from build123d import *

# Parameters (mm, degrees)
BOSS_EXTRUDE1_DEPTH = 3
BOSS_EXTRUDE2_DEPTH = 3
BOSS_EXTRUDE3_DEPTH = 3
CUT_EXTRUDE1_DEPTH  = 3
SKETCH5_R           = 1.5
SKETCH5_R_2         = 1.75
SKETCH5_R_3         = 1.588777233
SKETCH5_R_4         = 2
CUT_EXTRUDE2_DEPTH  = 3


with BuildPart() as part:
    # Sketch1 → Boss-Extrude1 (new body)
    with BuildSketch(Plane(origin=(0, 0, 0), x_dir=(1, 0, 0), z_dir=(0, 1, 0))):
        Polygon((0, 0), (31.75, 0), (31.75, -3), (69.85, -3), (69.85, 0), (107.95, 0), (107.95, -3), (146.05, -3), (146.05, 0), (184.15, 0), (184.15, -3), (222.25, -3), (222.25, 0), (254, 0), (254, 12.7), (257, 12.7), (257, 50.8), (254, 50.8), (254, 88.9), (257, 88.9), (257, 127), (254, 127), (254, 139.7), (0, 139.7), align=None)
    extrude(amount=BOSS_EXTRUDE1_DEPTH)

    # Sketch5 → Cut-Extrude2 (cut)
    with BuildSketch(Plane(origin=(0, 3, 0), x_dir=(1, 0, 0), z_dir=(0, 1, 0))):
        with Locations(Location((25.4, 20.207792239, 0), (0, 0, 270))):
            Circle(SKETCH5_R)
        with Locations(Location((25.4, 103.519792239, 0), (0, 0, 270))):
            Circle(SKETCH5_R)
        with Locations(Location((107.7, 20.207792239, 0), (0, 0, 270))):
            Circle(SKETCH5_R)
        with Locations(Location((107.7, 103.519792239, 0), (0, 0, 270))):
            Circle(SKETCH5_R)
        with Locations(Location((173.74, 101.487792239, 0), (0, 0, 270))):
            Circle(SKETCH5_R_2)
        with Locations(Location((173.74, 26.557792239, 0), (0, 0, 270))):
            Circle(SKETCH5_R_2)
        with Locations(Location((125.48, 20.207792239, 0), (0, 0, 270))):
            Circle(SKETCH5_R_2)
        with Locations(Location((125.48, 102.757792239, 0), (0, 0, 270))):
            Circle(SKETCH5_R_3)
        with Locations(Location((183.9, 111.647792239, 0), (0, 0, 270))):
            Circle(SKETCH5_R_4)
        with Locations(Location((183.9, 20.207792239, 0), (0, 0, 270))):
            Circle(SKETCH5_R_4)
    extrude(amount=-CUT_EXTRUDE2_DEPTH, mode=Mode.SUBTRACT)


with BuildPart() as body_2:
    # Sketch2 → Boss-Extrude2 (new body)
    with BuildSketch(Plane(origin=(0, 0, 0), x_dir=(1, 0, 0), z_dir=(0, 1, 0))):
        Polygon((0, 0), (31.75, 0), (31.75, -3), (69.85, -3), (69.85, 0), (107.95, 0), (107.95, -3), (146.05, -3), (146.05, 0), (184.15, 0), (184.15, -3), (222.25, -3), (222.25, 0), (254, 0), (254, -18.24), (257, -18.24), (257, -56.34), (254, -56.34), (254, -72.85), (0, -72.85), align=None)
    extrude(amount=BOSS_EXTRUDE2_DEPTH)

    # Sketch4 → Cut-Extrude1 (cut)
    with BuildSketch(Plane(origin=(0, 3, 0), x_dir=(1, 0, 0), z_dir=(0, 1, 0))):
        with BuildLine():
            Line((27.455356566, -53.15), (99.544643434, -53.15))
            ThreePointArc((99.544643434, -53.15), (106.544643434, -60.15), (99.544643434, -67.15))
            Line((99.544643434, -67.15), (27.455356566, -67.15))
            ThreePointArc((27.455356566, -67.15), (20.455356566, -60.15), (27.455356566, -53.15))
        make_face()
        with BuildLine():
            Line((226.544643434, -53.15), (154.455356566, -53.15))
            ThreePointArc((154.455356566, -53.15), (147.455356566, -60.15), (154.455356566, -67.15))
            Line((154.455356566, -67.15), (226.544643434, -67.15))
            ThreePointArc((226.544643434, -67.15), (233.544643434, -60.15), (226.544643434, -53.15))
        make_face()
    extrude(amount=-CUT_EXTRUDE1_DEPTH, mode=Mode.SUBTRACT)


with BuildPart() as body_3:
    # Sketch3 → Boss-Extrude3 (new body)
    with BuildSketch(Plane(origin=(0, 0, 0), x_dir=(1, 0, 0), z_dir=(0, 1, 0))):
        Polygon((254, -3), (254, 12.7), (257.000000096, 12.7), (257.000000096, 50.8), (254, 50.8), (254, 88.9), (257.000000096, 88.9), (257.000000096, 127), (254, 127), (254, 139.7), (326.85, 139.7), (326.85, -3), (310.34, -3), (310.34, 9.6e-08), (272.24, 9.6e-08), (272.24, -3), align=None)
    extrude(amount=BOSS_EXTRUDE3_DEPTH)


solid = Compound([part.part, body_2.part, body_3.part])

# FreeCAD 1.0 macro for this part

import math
import FreeCAD as App
import Part
import Sketcher
from FreeCAD import Vector
Q = App.Units.Quantity


def add_polygon(sketch, points):
    """Adds a closed chain of lines whose ends are joined by coincident constraints."""
    first, n = sketch.GeometryCount, len(points)
    for a, b in zip(points, points[1:] + points[:1]):
        sketch.addGeometry(Part.LineSegment(App.Vector(*a, 0), App.Vector(*b, 0)), False)
    for i in range(n):
        sketch.addConstraint(Sketcher.Constraint("Coincident", first + i, 2, first + (i + 1) % n, 1))

doc = App.newDocument("Part")
body = doc.addObject("PartDesign::Body", "Body")

# Sketch on XZ plane
sketch1 = body.newObject("Sketcher::SketchObject", "Sketch")
sketch1.AttachmentSupport = (doc.getObject("XZ_Plane"), [""])
sketch1.MapMode = "FlatFace"
add_polygon(sketch1, [(0, 0), (31.8, 0), (31.8, 3), (69.8, 3), (69.8, 0), (108, 0), (108, 3), (146.1, 3), (146.1, 0), (184.2, 0), (184.2, 3), (222.2, 3), (222.2, 0), (254, 0), (254, -12.7), (257, -12.7), (257, -50.8), (254, -50.8), (254, -88.9), (257, -88.9), (257, -127), (254, -127), (254, -139.7), (0, -139.7)])  # lines 0-23
sketch1.addConstraint([
    Sketcher.Constraint("Horizontal", 0),
    Sketcher.Constraint("Vertical", 1),
    Sketcher.Constraint("Horizontal", 2),
    Sketcher.Constraint("Vertical", 3),
    Sketcher.Constraint("Horizontal", 4),
    Sketcher.Constraint("Vertical", 5),
    Sketcher.Constraint("Horizontal", 6),
    Sketcher.Constraint("Vertical", 7),
    Sketcher.Constraint("Horizontal", 8),
    Sketcher.Constraint("Vertical", 9),
    Sketcher.Constraint("Horizontal", 10),
    Sketcher.Constraint("Vertical", 11),
    Sketcher.Constraint("Horizontal", 12),
    Sketcher.Constraint("Vertical", 13),
    Sketcher.Constraint("Horizontal", 14),
    Sketcher.Constraint("Vertical", 15),
    Sketcher.Constraint("Horizontal", 16),
    Sketcher.Constraint("Vertical", 17),
    Sketcher.Constraint("Horizontal", 18),
    Sketcher.Constraint("Vertical", 19),
    Sketcher.Constraint("Horizontal", 20),
    Sketcher.Constraint("Vertical", 21),
    Sketcher.Constraint("Horizontal", 22),
    Sketcher.Constraint("Vertical", 23),
    Sketcher.Constraint("Coincident", 23, 2, -1, 1),
    Sketcher.Constraint("PointOnObject", 3, 2, -1),
    Sketcher.Constraint("PointOnObject", 7, 2, -1),
    Sketcher.Constraint("PointOnObject", 11, 2, -1),
    Sketcher.Constraint("Horizontal", 2, 2, 5, 2),
    Sketcher.Constraint("Horizontal", 6, 2, 9, 2),
    Sketcher.Constraint("Vertical", 13, 2, 16, 2),
    Sketcher.Constraint("Vertical", 15, 2, 18, 2),
    Sketcher.Constraint("Vertical", 17, 2, 20, 2),
    Sketcher.Constraint("Equal", 2, 4),
    Sketcher.Constraint("Equal", 4, 6),
    Sketcher.Constraint("Equal", 6, 8),
    Sketcher.Constraint("Equal", 8, 10),
    Sketcher.Constraint("Equal", 0, 12),
    Sketcher.Constraint("Equal", 20, 1),
    Sketcher.Constraint("Equal", 10, 15),
    Sketcher.Constraint("Equal", 15, 17),
    Sketcher.Constraint("Equal", 17, 19),
    Sketcher.Constraint("Equal", 13, 21),
    Sketcher.Constraint("DistanceX", 14, 1, 14, 2, Q("3 mm")),
    Sketcher.Constraint("DistanceX", 22, 2, 22, 1, Q("254 mm")),
    Sketcher.Constraint("DistanceX", 2, 1, 2, 2, Q("38.1 mm")),
    Sketcher.Constraint("DistanceY", 13, 2, 13, 1, Q("12.7 mm")),
])
pad1 = body.newObject("PartDesign::Pad", "Pad")
pad1.Profile = sketch1
pad1.Length = 3
pad1.Reversed = True

# Sketch on XZ plane
sketch2 = body.newObject("Sketcher::SketchObject", "Sketch001")
sketch2.AttachmentSupport = (doc.getObject("XZ_Plane"), [""])
sketch2.MapMode = "FlatFace"
sketch2.AttachmentOffset = App.Placement(Vector(0, 0, -3), App.Rotation())
sketch2.addGeometry([
    Part.Circle(Vector(25.4, -20.2, 0), Vector(0, 0, 1), 1.5),  # 0
    Part.Circle(Vector(25.4, -103.5, 0), Vector(0, 0, 1), 1.5),  # 1
    Part.Circle(Vector(107.7, -20.2, 0), Vector(0, 0, 1), 1.5),  # 2
    Part.Circle(Vector(107.7, -103.5, 0), Vector(0, 0, 1), 1.5),  # 3
    Part.Circle(Vector(173.7, -101.5, 0), Vector(0, 0, 1), 1.8),  # 4
    Part.Circle(Vector(173.7, -26.6, 0), Vector(0, 0, 1), 1.8),  # 5
    Part.Circle(Vector(125.5, -20.2, 0), Vector(0, 0, 1), 1.8),  # 6
    Part.Circle(Vector(125.5, -102.8, 0), Vector(0, 0, 1), 1.6),  # 7
    Part.Circle(Vector(183.9, -111.6, 0), Vector(0, 0, 1), 2),  # 8
    Part.Circle(Vector(183.9, -20.2, 0), Vector(0, 0, 1), 2),  # 9
], False)
sketch2.addConstraint([
    Sketcher.Constraint("Equal", 0, 1),
    Sketcher.Constraint("Equal", 1, 2),
    Sketcher.Constraint("Equal", 2, 3),
    Sketcher.Constraint("Equal", 4, 5),
    Sketcher.Constraint("Equal", 5, 6),
    Sketcher.Constraint("Equal", 8, 9),
    Sketcher.Constraint("Horizontal", 0, 3, 2, 3),
    Sketcher.Constraint("Horizontal", 1, 3, 3, 3),
    Sketcher.Constraint("Horizontal", 2, 3, 6, 3),
    Sketcher.Constraint("Horizontal", 6, 3, 9, 3),
    Sketcher.Constraint("Vertical", 0, 3, 1, 3),
    Sketcher.Constraint("Vertical", 2, 3, 3, 3),
    Sketcher.Constraint("Vertical", 4, 3, 5, 3),
    Sketcher.Constraint("Vertical", 6, 3, 7, 3),
    Sketcher.Constraint("Vertical", 8, 3, 9, 3),
    Sketcher.Constraint("Diameter", 0, Q("3 mm")),
    Sketcher.Constraint("Diameter", 8, Q("4 mm")),
    Sketcher.Constraint("Diameter", 4, Q("3.5 mm")),
    Sketcher.Constraint("DistanceX", -1, 1, 0, 3, Q("25.4 mm")),
    Sketcher.Constraint("DistanceX", -1, 1, 2, 3, Q("107.7 mm")),
    Sketcher.Constraint("DistanceX", -1, 1, 8, 3, Q("183.9 mm")),
    Sketcher.Constraint("DistanceY", 7, 3, 5, 3, Q("76.2 mm")),
    Sketcher.Constraint("DistanceX", -1, 1, 4, 3, Q("173.74 mm")),
    Sketcher.Constraint("DistanceX", -1, 1, 6, 3, Q("125.48 mm")),
    Sketcher.Constraint("DistanceY", 4, 3, 2, 3, Q("81.28 mm")),
    Sketcher.Constraint("DistanceY", 5, 3, 2, 3, Q("6.35 mm")),
    Sketcher.Constraint("DistanceY", 8, 3, 4, 3, Q("10.16 mm")),
    Sketcher.Constraint("Diameter", 7, Q("3.177554 mm")),
    Sketcher.Constraint("DistanceY", 1, 3, 0, 3, Q("83.312 mm")),
    Sketcher.Constraint("DistanceY", 0, 3, -1, 1, Q("20.207792 mm")),
])
pocket1 = body.newObject("PartDesign::Pocket", "Pocket")
pocket1.Profile = sketch2
pocket1.Length = 3
pocket1.Reversed = True
body2 = doc.addObject("PartDesign::Body", "Body001")

# Sketch on XZ plane
sketch3 = body2.newObject("Sketcher::SketchObject", "Sketch002")
sketch3.AttachmentSupport = (doc.getObject("XZ_Plane001"), [""])
sketch3.MapMode = "FlatFace"
add_polygon(sketch3, [(31.8, 0), (0, 0), (0, 72.8), (254, 72.8), (254, 56.3), (257, 56.3), (257, 18.2), (254, 18.2), (254, 0), (222.2, 0), (222.2, 3), (184.2, 3), (184.2, 0), (146.1, 0), (146.1, 3), (108, 3), (108, 0), (69.8, 0), (69.8, 3), (31.8, 3)])  # lines 0-19
sketch3.addConstraint([
    Sketcher.Constraint("Horizontal", 0),
    Sketcher.Constraint("Vertical", 1),
    Sketcher.Constraint("Horizontal", 2),
    Sketcher.Constraint("Vertical", 3),
    Sketcher.Constraint("Horizontal", 4),
    Sketcher.Constraint("Vertical", 5),
    Sketcher.Constraint("Horizontal", 6),
    Sketcher.Constraint("Vertical", 7),
    Sketcher.Constraint("Horizontal", 8),
    Sketcher.Constraint("Vertical", 9),
    Sketcher.Constraint("Horizontal", 10),
    Sketcher.Constraint("Vertical", 11),
    Sketcher.Constraint("Horizontal", 12),
    Sketcher.Constraint("Vertical", 13),
    Sketcher.Constraint("Horizontal", 14),
    Sketcher.Constraint("Vertical", 15),
    Sketcher.Constraint("Horizontal", 16),
    Sketcher.Constraint("Vertical", 17),
    Sketcher.Constraint("Horizontal", 18),
    Sketcher.Constraint("Vertical", 19),
    Sketcher.Constraint("Coincident", 0, 2, -1, 1),
    Sketcher.Constraint("PointOnObject", 7, 2, -1),
    Sketcher.Constraint("PointOnObject", 11, 2, -1),
    Sketcher.Constraint("PointOnObject", 15, 2, -1),
    Sketcher.Constraint("Horizontal", 10, 2, 13, 2),
    Sketcher.Constraint("Horizontal", 14, 2, 17, 2),
    Sketcher.Constraint("Vertical", 3, 2, 6, 2),
    Sketcher.Constraint("Equal", 0, 8),
    Sketcher.Constraint("Equal", 10, 12),
    Sketcher.Constraint("Equal", 12, 14),
    Sketcher.Constraint("Equal", 14, 16),
    Sketcher.Constraint("Equal", 16, 18),
    Sketcher.Constraint("Equal", 18, 5),
    Sketcher.Constraint("Equal", 6, 9),
    Sketcher.Constraint("DistanceX", 2, 1, 2, 2, Q("254 mm")),
    Sketcher.Constraint("DistanceX", 4, 1, 4, 2, Q("3 mm")),
    Sketcher.Constraint("DistanceX", 10, 2, 10, 1, Q("38.1 mm")),
    Sketcher.Constraint("DistanceY", 1, 1, 1, 2, Q("72.85 mm")),
    Sketcher.Constraint("DistanceY", 3, 2, 3, 1, Q("16.51 mm")),
])
pad2 = body2.newObject("PartDesign::Pad", "Pad001")
pad2.Profile = sketch3
pad2.Length = 3
pad2.Reversed = True

# Sketch on XZ plane
sketch4 = body2.newObject("Sketcher::SketchObject", "Sketch003")
sketch4.AttachmentSupport = (doc.getObject("XZ_Plane001"), [""])
sketch4.MapMode = "FlatFace"
sketch4.AttachmentOffset = App.Placement(Vector(0, 0, -3), App.Rotation())
sketch4.addGeometry([
    Part.LineSegment(Vector(100, 53, 0), Vector(27, 53, 0)),  # 0
    Part.ArcOfCircle(Part.Circle(Vector(27, 60, 0), Vector(0, 0, 1), 7), math.radians(90), math.radians(270)),  # 1
    Part.LineSegment(Vector(27, 67, 0), Vector(100, 67, 0)),  # 2
    Part.ArcOfCircle(Part.Circle(Vector(100, 60, 0), Vector(0, 0, 1), 7), math.radians(-90), math.radians(90)),  # 3
    Part.LineSegment(Vector(227, 53, 0), Vector(154, 53, 0)),  # 4
    Part.ArcOfCircle(Part.Circle(Vector(154, 60, 0), Vector(0, 0, 1), 7), math.radians(90), math.radians(270)),  # 5
    Part.LineSegment(Vector(154, 67, 0), Vector(227, 67, 0)),  # 6
    Part.ArcOfCircle(Part.Circle(Vector(227, 60, 0), Vector(0, 0, 1), 7), math.radians(-90), math.radians(90)),  # 7
], False)
sketch4.addConstraint([
    Sketcher.Constraint("Tangent", 0, 2, 1, 2),
    Sketcher.Constraint("Tangent", 1, 1, 2, 1),
    Sketcher.Constraint("Tangent", 2, 2, 3, 2),
    Sketcher.Constraint("Tangent", 3, 1, 0, 1),
    Sketcher.Constraint("Tangent", 4, 2, 5, 2),
    Sketcher.Constraint("Tangent", 5, 1, 6, 1),
    Sketcher.Constraint("Tangent", 6, 2, 7, 2),
    Sketcher.Constraint("Tangent", 7, 1, 4, 1),
    Sketcher.Constraint("Horizontal", 0),
    Sketcher.Constraint("Horizontal", 2),
    Sketcher.Constraint("Horizontal", 4),
    Sketcher.Constraint("Horizontal", 6),
    Sketcher.Constraint("Equal", 3, 5),
    Sketcher.Constraint("Horizontal", 3, 3, 5, 3),
    Sketcher.Constraint("Equal", 2, 4),
    Sketcher.Constraint("Radius", 1, Q("7 mm")),
    Sketcher.Constraint("DistanceX", 1, 3, 5, 3, Q("127 mm")),
    Sketcher.Constraint("DistanceY", -1, 1, 1, 3, Q("60.15 mm")),
    Sketcher.Constraint("DistanceX", 0, 2, 0, 1, Q("72.089287 mm")),
    Sketcher.Constraint("DistanceX", -1, 1, 1, 3, Q("27.455357 mm")),
])
pocket2 = body2.newObject("PartDesign::Pocket", "Pocket001")
pocket2.Profile = sketch4
pocket2.Length = 3
pocket2.Reversed = True
body3 = doc.addObject("PartDesign::Body", "Body002")

# Sketch on XZ plane
sketch5 = body3.newObject("Sketcher::SketchObject", "Sketch004")
sketch5.AttachmentSupport = (doc.getObject("XZ_Plane002"), [""])
sketch5.MapMode = "FlatFace"
add_polygon(sketch5, [(254, -12.7), (254, 3), (272.2, 3), (272.2, 0), (310.3, 0), (310.3, 3), (326.9, 3), (326.9, -139.7), (254, -139.7), (254, -127), (257, -127), (257, -88.9), (254, -88.9), (254, -50.8), (257, -50.8), (257, -12.7)])  # lines 0-15
sketch5.addConstraint([
    Sketcher.Constraint("Vertical", 0),
    Sketcher.Constraint("Horizontal", 1),
    Sketcher.Constraint("Vertical", 2),
    Sketcher.Constraint("Horizontal", 3),
    Sketcher.Constraint("Vertical", 4),
    Sketcher.Constraint("Horizontal", 5),
    Sketcher.Constraint("Vertical", 6),
    Sketcher.Constraint("Horizontal", 7),
    Sketcher.Constraint("Vertical", 8),
    Sketcher.Constraint("Horizontal", 9),
    Sketcher.Constraint("Vertical", 10),
    Sketcher.Constraint("Horizontal", 11),
    Sketcher.Constraint("Vertical", 12),
    Sketcher.Constraint("Horizontal", 13),
    Sketcher.Constraint("Vertical", 14),
    Sketcher.Constraint("Horizontal", 15),
    Sketcher.Constraint("PointOnObject", 2, 2, -1),
    Sketcher.Constraint("Horizontal", 1, 2, 4, 2),
    Sketcher.Constraint("Vertical", 0, 2, 7, 2),
    Sketcher.Constraint("Vertical", 8, 2, 11, 2),
    Sketcher.Constraint("Vertical", 10, 2, 13, 2),
    Sketcher.Constraint("Equal", 15, 2),
    Sketcher.Constraint("Equal", 3, 10),
    Sketcher.Constraint("Equal", 10, 12),
    Sketcher.Constraint("Equal", 12, 14),
    Sketcher.Constraint("DistanceX", 9, 1, 9, 2, Q("3 mm")),
    Sketcher.Constraint("DistanceX", 3, 1, 3, 2, Q("38.1 mm")),
    Sketcher.Constraint("DistanceY", 0, 1, 0, 2, Q("15.7 mm")),
    Sketcher.Constraint("DistanceY", 6, 2, 6, 1, Q("142.7 mm")),
    Sketcher.Constraint("DistanceX", -1, 1, 0, 2, Q("254 mm")),
    Sketcher.Constraint("DistanceX", 1, 1, 1, 2, Q("18.24 mm")),
    Sketcher.Constraint("DistanceX", 5, 1, 5, 2, Q("16.51 mm")),
])
pad3 = body3.newObject("PartDesign::Pad", "Pad002")
pad3.Profile = sketch5
pad3.Length = 3
pad3.Reversed = True

doc.recompute()
